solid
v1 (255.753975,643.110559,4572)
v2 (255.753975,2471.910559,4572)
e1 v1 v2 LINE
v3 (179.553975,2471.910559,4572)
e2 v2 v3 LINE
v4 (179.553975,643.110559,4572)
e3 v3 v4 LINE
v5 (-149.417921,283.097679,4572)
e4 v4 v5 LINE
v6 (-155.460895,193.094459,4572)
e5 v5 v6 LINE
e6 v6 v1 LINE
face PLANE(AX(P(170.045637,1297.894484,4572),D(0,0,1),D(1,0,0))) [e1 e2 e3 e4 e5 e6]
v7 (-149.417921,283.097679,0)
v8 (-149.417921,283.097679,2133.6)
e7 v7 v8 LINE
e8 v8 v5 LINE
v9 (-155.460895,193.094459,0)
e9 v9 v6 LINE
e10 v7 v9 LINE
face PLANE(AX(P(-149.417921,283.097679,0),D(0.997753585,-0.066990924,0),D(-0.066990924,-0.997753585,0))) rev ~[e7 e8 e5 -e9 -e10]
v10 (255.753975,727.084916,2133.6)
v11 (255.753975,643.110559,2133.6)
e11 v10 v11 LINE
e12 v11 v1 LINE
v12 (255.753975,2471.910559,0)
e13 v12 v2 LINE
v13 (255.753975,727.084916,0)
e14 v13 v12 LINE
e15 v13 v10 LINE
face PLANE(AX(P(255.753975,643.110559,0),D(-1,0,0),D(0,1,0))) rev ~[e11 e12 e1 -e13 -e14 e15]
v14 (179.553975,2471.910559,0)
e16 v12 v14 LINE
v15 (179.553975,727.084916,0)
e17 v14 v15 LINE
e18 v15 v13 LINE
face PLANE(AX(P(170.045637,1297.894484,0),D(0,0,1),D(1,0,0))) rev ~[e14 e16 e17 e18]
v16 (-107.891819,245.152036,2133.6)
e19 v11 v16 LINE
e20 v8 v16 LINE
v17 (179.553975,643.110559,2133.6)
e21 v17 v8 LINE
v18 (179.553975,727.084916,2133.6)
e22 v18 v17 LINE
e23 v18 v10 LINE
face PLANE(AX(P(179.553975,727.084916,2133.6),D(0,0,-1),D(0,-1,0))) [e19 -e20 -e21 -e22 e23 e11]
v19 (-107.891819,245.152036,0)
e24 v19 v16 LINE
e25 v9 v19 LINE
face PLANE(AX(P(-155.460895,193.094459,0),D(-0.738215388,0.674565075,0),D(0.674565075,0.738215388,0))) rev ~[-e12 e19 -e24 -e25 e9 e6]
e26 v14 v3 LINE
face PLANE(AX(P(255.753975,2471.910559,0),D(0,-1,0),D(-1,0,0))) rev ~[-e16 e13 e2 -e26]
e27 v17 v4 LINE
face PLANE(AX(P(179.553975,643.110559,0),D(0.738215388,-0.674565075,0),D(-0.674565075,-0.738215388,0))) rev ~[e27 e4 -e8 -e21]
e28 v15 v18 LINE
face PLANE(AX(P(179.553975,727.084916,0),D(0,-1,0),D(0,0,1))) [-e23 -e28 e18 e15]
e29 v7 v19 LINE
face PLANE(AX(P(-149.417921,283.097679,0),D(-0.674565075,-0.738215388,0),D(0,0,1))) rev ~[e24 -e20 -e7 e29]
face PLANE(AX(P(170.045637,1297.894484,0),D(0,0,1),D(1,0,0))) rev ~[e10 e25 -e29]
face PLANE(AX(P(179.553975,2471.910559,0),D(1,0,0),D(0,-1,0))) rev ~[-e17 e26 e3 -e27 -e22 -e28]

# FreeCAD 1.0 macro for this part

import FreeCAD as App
import Part
import Sketcher
from FreeCAD import Vector
Q = App.Units.Quantity

doc = App.newDocument("Part")
body = doc.addObject("PartDesign::Body", "Body")

sketch1 = body.newObject("Sketcher::SketchObject", "Sketch")
sketch1.AttachmentSupport = (doc.getObject("XY_Plane"), [""])
sketch1.MapMode = "FlatFace"
sketch1.addGeometry(Part.LineSegment(Vector(255.753975, 643.110559, 0), Vector(255.753975, 2471.910559, 0)), False)
sketch1.addGeometry(Part.LineSegment(Vector(255.753975, 2471.910559, 0), Vector(179.553975, 2471.910559, 0)), False)
sketch1.addGeometry(Part.LineSegment(Vector(179.553975, 2471.910559, 0), Vector(179.553975, 643.110559, 0)), False)
sketch1.addGeometry(Part.LineSegment(Vector(179.553975, 643.110559, 0), Vector(-149.417921, 283.097679, 0)), False)
sketch1.addGeometry(Part.LineSegment(Vector(-149.417921, 283.097679, 0), Vector(-155.460895, 193.094459, 0)), False)
sketch1.addGeometry(Part.LineSegment(Vector(-155.460895, 193.094459, 0), Vector(255.753975, 643.110559, 0)), False)
sketch1.addConstraint(Sketcher.Constraint("Coincident", 0, 2, 1, 1))
sketch1.addConstraint(Sketcher.Constraint("Coincident", 1, 2, 2, 1))
sketch1.addConstraint(Sketcher.Constraint("Coincident", 2, 2, 3, 1))
sketch1.addConstraint(Sketcher.Constraint("Coincident", 3, 2, 4, 1))
sketch1.addConstraint(Sketcher.Constraint("Coincident", 4, 2, 5, 1))
sketch1.addConstraint(Sketcher.Constraint("Coincident", 5, 2, 0, 1))
sketch1.addConstraint(Sketcher.Constraint("Vertical", 0))
sketch1.addConstraint(Sketcher.Constraint("Horizontal", 1))
sketch1.addConstraint(Sketcher.Constraint("Vertical", 2))
sketch1.addConstraint(Sketcher.Constraint("Parallel", 3, 5))
sketch1.addConstraint(Sketcher.Constraint("Horizontal", 2, 2, 5, 2))
sketch1.addConstraint(Sketcher.Constraint("DistanceX", 1, 2, 1, 1, Q("3 in")))
sketch1.addConstraint(Sketcher.Constraint("DistanceY", 0, 1, 0, 2, Q("72 in")))
sketch1.addConstraint(Sketcher.Constraint("Distance", 5, Q("24 in")))
sketch1.addConstraint(Sketcher.Constraint("Distance", 3, Q("19.2 in")))
sketch1.addConstraint(Sketcher.Constraint("DistanceY", 4, 2, 2, 2, 450.016101))
sketch1.addConstraint(Sketcher.Constraint("DistanceY", -1, 1, 0, 2, 2471.910559))
sketch1.addConstraint(Sketcher.Constraint("DistanceX", 3, 2, -1, 1, 149.417921))
pad1 = body.newObject("PartDesign::Pad", "Pad")
pad1.Profile = sketch1
pad1.Length = Q("180 in")

sketch2 = body.newObject("Sketcher::SketchObject", "Sketch001")
sketch2.Placement = App.Placement(Vector(-222.402457, 203.2265, 0), App.Rotation(Vector(-0.674565075, -0.738215388, 0), Vector(0, 0, 0.999999999), Vector(-0.738215388, 0.674565075, 0), "ZXY"))
sketch2.addGeometry(Part.LineSegment(Vector(-595.874952, 2133.599998, 0), Vector(-595.874952, 0, 0)), False)
sketch2.addGeometry(Part.LineSegment(Vector(-595.874952, 0, 0), Vector(-108.194952, 0, 0)), False)
sketch2.addGeometry(Part.LineSegment(Vector(-108.194952, 0, 0), Vector(-108.194952, 2133.599998, 0)), False)
sketch2.addGeometry(Part.LineSegment(Vector(-108.194952, 2133.599998, 0), Vector(-595.874952, 2133.599998, 0)), False)
sketch2.addConstraint(Sketcher.Constraint("Coincident", 0, 2, 1, 1))
sketch2.addConstraint(Sketcher.Constraint("Coincident", 1, 2, 2, 1))
sketch2.addConstraint(Sketcher.Constraint("Coincident", 2, 2, 3, 1))
sketch2.addConstraint(Sketcher.Constraint("Coincident", 3, 2, 0, 1))
sketch2.addConstraint(Sketcher.Constraint("Vertical", 0))
sketch2.addConstraint(Sketcher.Constraint("Horizontal", 1))
sketch2.addConstraint(Sketcher.Constraint("Vertical", 2))
sketch2.addConstraint(Sketcher.Constraint("Horizontal", 3))
sketch2.addConstraint(Sketcher.Constraint("PointOnObject", 0, 2, -1))
sketch2.addConstraint(Sketcher.Constraint("DistanceY", 0, 2, 0, 1, Q("83.9999999 in")))
sketch2.addConstraint(Sketcher.Constraint("DistanceX", 1, 1, 1, 2, Q("19.2 in")))
sketch2.addConstraint(Sketcher.Constraint("DistanceX", 0, 2, -1, 1, 595.874952))
pocket1 = body.newObject("PartDesign::Pocket", "Pocket")
pocket1.Profile = sketch2
pocket1.Length = Q("3 in")

sketch3 = body.newObject("Sketcher::SketchObject", "Sketch002")
sketch3.AttachmentSupport = (doc.getObject("YZ_Plane"), [""])
sketch3.MapMode = "FlatFace"
sketch3.AttachmentOffset = App.Placement(Vector(0, 0, 179.553975), App.Rotation())
sketch3.addGeometry(Part.LineSegment(Vector(727.084916, 2133.6, 0), Vector(727.084916, 0, 0)), False)
sketch3.addGeometry(Part.LineSegment(Vector(727.084916, 0, 0), Vector(605.164916, 0, 0)), False)
sketch3.addGeometry(Part.LineSegment(Vector(605.164916, 0, 0), Vector(605.164916, 2133.6, 0)), False)
sketch3.addGeometry(Part.LineSegment(Vector(605.164916, 2133.6, 0), Vector(727.084916, 2133.6, 0)), False)
sketch3.addConstraint(Sketcher.Constraint("Coincident", 0, 2, 1, 1))
sketch3.addConstraint(Sketcher.Constraint("Coincident", 1, 2, 2, 1))
sketch3.addConstraint(Sketcher.Constraint("Coincident", 2, 2, 3, 1))
sketch3.addConstraint(Sketcher.Constraint("Coincident", 3, 2, 0, 1))
sketch3.addConstraint(Sketcher.Constraint("Vertical", 0))
sketch3.addConstraint(Sketcher.Constraint("Horizontal", 1))
sketch3.addConstraint(Sketcher.Constraint("Vertical", 2))
sketch3.addConstraint(Sketcher.Constraint("Horizontal", 3))
sketch3.addConstraint(Sketcher.Constraint("PointOnObject", 0, 2, -1))
sketch3.addConstraint(Sketcher.Constraint("DistanceY", 0, 2, 0, 1, Q("84 in")))
sketch3.addConstraint(Sketcher.Constraint("DistanceX", 1, 2, 1, 1, Q("4.8 in")))
sketch3.addConstraint(Sketcher.Constraint("DistanceX", -1, 1, 0, 2, 727.084916))
pocket2 = body.newObject("PartDesign::Pocket", "Pocket001")
pocket2.Profile = sketch3
pocket2.Length = Q("3 in")
pocket2.Reversed = True

doc.recompute()
